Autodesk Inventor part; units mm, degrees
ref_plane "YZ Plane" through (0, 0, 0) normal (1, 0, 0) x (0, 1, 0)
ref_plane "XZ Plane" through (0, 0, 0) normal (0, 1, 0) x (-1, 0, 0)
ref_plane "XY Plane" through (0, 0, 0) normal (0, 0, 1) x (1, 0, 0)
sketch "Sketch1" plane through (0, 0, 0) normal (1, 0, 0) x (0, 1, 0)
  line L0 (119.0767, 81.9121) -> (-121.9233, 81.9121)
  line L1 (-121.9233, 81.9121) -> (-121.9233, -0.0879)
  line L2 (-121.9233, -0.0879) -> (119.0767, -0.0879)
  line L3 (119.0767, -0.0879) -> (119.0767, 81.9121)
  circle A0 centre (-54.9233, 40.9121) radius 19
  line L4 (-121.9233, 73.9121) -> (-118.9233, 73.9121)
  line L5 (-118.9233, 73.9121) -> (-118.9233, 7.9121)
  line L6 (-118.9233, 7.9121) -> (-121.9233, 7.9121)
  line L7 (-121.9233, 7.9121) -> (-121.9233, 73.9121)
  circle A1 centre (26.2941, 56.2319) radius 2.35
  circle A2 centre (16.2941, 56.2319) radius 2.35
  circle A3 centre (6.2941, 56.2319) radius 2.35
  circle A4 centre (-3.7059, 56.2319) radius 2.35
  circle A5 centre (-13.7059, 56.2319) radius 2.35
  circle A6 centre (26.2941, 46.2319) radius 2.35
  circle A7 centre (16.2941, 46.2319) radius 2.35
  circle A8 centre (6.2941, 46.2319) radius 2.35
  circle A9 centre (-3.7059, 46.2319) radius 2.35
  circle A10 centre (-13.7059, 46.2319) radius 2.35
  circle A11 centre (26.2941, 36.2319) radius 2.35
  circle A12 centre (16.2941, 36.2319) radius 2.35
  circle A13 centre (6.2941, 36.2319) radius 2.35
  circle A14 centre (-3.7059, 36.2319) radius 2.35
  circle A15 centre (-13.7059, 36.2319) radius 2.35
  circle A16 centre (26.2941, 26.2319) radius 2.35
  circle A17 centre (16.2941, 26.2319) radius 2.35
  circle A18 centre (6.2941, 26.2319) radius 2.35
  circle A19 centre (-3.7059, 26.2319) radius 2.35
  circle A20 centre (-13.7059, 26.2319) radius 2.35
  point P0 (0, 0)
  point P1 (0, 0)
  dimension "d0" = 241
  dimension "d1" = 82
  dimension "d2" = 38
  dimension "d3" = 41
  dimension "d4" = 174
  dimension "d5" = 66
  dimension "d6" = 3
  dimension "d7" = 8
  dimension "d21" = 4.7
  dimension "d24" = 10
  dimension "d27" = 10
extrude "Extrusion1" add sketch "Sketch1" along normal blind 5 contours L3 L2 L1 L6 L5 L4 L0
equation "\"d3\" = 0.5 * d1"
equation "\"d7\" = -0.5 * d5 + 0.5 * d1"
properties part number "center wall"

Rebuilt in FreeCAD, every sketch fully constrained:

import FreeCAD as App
import Part
import Sketcher
Q = App.Units.Quantity


def add_polygon(sketch, points):
    """Adds a closed chain of lines whose ends are joined by coincident constraints."""
    first, n = sketch.GeometryCount, len(points)
    for a, b in zip(points, points[1:] + points[:1]):
        sketch.addGeometry(Part.LineSegment(App.Vector(*a, 0), App.Vector(*b, 0)), False)
    for i in range(n):
        sketch.addConstraint(Sketcher.Constraint("Coincident", first + i, 2, first + (i + 1) % n, 1))

doc = App.newDocument("Part")
body = doc.addObject("PartDesign::Body", "Body")

# Sketch on YZ plane
sketch1 = body.newObject("Sketcher::SketchObject", "Sketch")
sketch1.AttachmentSupport = (doc.getObject("YZ_Plane"), [""])
sketch1.MapMode = "FlatFace"
add_polygon(sketch1, [(119.1, -0.1), (119.1, 81.9), (-121.9, 81.9), (-121.9, 73.9), (-118.9, 73.9), (-118.9, 7.9), (-121.9, 7.9), (-121.9, -0.1)])  # lines 0-7
sketch1.addGeometry(Part.Circle(App.Vector(-13.7, 26.2, 0), App.Vector(0, 0, 1), 2.4), False)  # 8
sketch1.addGeometry(Part.Circle(App.Vector(-3.7, 26.2, 0), App.Vector(0, 0, 1), 2.4), False)  # 9
sketch1.addGeometry(Part.Circle(App.Vector(-13.7, 36.2, 0), App.Vector(0, 0, 1), 2.4), False)  # 10
sketch1.addGeometry(Part.Circle(App.Vector(-3.7, 36.2, 0), App.Vector(0, 0, 1), 2.4), False)  # 11
sketch1.addGeometry(Part.Circle(App.Vector(6.3, 26.2, 0), App.Vector(0, 0, 1), 2.4), False)  # 12
sketch1.addGeometry(Part.Circle(App.Vector(16.3, 26.2, 0), App.Vector(0, 0, 1), 2.4), False)  # 13
sketch1.addGeometry(Part.Circle(App.Vector(26.3, 26.2, 0), App.Vector(0, 0, 1), 2.4), False)  # 14
sketch1.addGeometry(Part.Circle(App.Vector(6.3, 36.2, 0), App.Vector(0, 0, 1), 2.4), False)  # 15
sketch1.addGeometry(Part.Circle(App.Vector(16.3, 36.2, 0), App.Vector(0, 0, 1), 2.4), False)  # 16
sketch1.addGeometry(Part.Circle(App.Vector(26.3, 36.2, 0), App.Vector(0, 0, 1), 2.4), False)  # 17
sketch1.addGeometry(Part.Circle(App.Vector(-54.9, 40.9, 0), App.Vector(0, 0, 1), 19), False)  # 18
sketch1.addGeometry(Part.Circle(App.Vector(-13.7, 46.2, 0), App.Vector(0, 0, 1), 2.4), False)  # 19
sketch1.addGeometry(Part.Circle(App.Vector(-3.7, 46.2, 0), App.Vector(0, 0, 1), 2.4), False)  # 20
sketch1.addGeometry(Part.Circle(App.Vector(-13.7, 56.2, 0), App.Vector(0, 0, 1), 2.4), False)  # 21
sketch1.addGeometry(Part.Circle(App.Vector(-3.7, 56.2, 0), App.Vector(0, 0, 1), 2.4), False)  # 22
sketch1.addGeometry(Part.Circle(App.Vector(6.3, 46.2, 0), App.Vector(0, 0, 1), 2.4), False)  # 23
sketch1.addGeometry(Part.Circle(App.Vector(16.3, 46.2, 0), App.Vector(0, 0, 1), 2.4), False)  # 24
sketch1.addGeometry(Part.Circle(App.Vector(26.3, 46.2, 0), App.Vector(0, 0, 1), 2.4), False)  # 25
sketch1.addGeometry(Part.Circle(App.Vector(6.3, 56.2, 0), App.Vector(0, 0, 1), 2.4), False)  # 26
sketch1.addGeometry(Part.Circle(App.Vector(16.3, 56.2, 0), App.Vector(0, 0, 1), 2.4), False)  # 27
sketch1.addGeometry(Part.Circle(App.Vector(26.3, 56.2, 0), App.Vector(0, 0, 1), 2.4), False)  # 28
sketch1.addConstraint(Sketcher.Constraint("Vertical", 0))
sketch1.addConstraint(Sketcher.Constraint("Horizontal", 1))
sketch1.addConstraint(Sketcher.Constraint("Vertical", 2))
sketch1.addConstraint(Sketcher.Constraint("Horizontal", 3))
sketch1.addConstraint(Sketcher.Constraint("Vertical", 4))
sketch1.addConstraint(Sketcher.Constraint("Horizontal", 5))
sketch1.addConstraint(Sketcher.Constraint("Vertical", 6))
sketch1.addConstraint(Sketcher.Constraint("Horizontal", 7))
sketch1.addConstraint(Sketcher.Constraint("Equal", 8, 9))
sketch1.addConstraint(Sketcher.Constraint("Equal", 9, 10))
sketch1.addConstraint(Sketcher.Constraint("Equal", 10, 11))
sketch1.addConstraint(Sketcher.Constraint("Equal", 11, 12))
sketch1.addConstraint(Sketcher.Constraint("Equal", 12, 13))
sketch1.addConstraint(Sketcher.Constraint("Equal", 13, 14))
sketch1.addConstraint(Sketcher.Constraint("Equal", 14, 15))
sketch1.addConstraint(Sketcher.Constraint("Equal", 15, 16))
sketch1.addConstraint(Sketcher.Constraint("Equal", 16, 17))
sketch1.addConstraint(Sketcher.Constraint("Equal", 17, 19))
sketch1.addConstraint(Sketcher.Constraint("Equal", 19, 20))
sketch1.addConstraint(Sketcher.Constraint("Equal", 20, 21))
sketch1.addConstraint(Sketcher.Constraint("Equal", 21, 22))
sketch1.addConstraint(Sketcher.Constraint("Equal", 22, 23))
sketch1.addConstraint(Sketcher.Constraint("Equal", 23, 24))
sketch1.addConstraint(Sketcher.Constraint("Equal", 24, 25))
sketch1.addConstraint(Sketcher.Constraint("Equal", 25, 26))
sketch1.addConstraint(Sketcher.Constraint("Equal", 26, 27))
sketch1.addConstraint(Sketcher.Constraint("Equal", 27, 28))
sketch1.addConstraint(Sketcher.Constraint("Horizontal", 8, 3, 9, 3))
sketch1.addConstraint(Sketcher.Constraint("Horizontal", 10, 3, 11, 3))
sketch1.addConstraint(Sketcher.Constraint("Horizontal", 9, 3, 12, 3))
sketch1.addConstraint(Sketcher.Constraint("Horizontal", 12, 3, 13, 3))
sketch1.addConstraint(Sketcher.Constraint("Horizontal", 13, 3, 14, 3))
sketch1.addConstraint(Sketcher.Constraint("Horizontal", 11, 3, 15, 3))
sketch1.addConstraint(Sketcher.Constraint("Horizontal", 15, 3, 16, 3))
sketch1.addConstraint(Sketcher.Constraint("Horizontal", 16, 3, 17, 3))
sketch1.addConstraint(Sketcher.Constraint("Horizontal", 19, 3, 20, 3))
sketch1.addConstraint(Sketcher.Constraint("Horizontal", 21, 3, 22, 3))
sketch1.addConstraint(Sketcher.Constraint("Horizontal", 20, 3, 23, 3))
sketch1.addConstraint(Sketcher.Constraint("Horizontal", 23, 3, 24, 3))
sketch1.addConstraint(Sketcher.Constraint("Horizontal", 24, 3, 25, 3))
sketch1.addConstraint(Sketcher.Constraint("Horizontal", 22, 3, 26, 3))
sketch1.addConstraint(Sketcher.Constraint("Horizontal", 26, 3, 27, 3))
sketch1.addConstraint(Sketcher.Constraint("Horizontal", 27, 3, 28, 3))
sketch1.addConstraint(Sketcher.Constraint("Vertical", 8, 3, 10, 3))
sketch1.addConstraint(Sketcher.Constraint("Vertical", 9, 3, 11, 3))
sketch1.addConstraint(Sketcher.Constraint("Vertical", 12, 3, 15, 3))
sketch1.addConstraint(Sketcher.Constraint("Vertical", 13, 3, 16, 3))
sketch1.addConstraint(Sketcher.Constraint("Vertical", 14, 3, 17, 3))
sketch1.addConstraint(Sketcher.Constraint("Vertical", 10, 3, 19, 3))
sketch1.addConstraint(Sketcher.Constraint("Vertical", 11, 3, 20, 3))
sketch1.addConstraint(Sketcher.Constraint("Vertical", 19, 3, 21, 3))
sketch1.addConstraint(Sketcher.Constraint("Vertical", 20, 3, 22, 3))
sketch1.addConstraint(Sketcher.Constraint("Vertical", 15, 3, 23, 3))
sketch1.addConstraint(Sketcher.Constraint("Vertical", 16, 3, 24, 3))
sketch1.addConstraint(Sketcher.Constraint("Vertical", 17, 3, 25, 3))
sketch1.addConstraint(Sketcher.Constraint("Vertical", 23, 3, 26, 3))
sketch1.addConstraint(Sketcher.Constraint("Vertical", 24, 3, 27, 3))
sketch1.addConstraint(Sketcher.Constraint("Vertical", 25, 3, 28, 3))
sketch1.addConstraint(Sketcher.Constraint("Vertical", 2, 2, 5, 2))
sketch1.addConstraint(Sketcher.Constraint("Equal", 2, 6))
sketch1.addConstraint(Sketcher.Constraint("Diameter", 18, Q("38 mm")))
sketch1.addConstraint(Sketcher.Constraint("Diameter", 8, Q("4.7 mm")))
sketch1.addConstraint(Sketcher.Constraint("DistanceX", 1, 2, 1, 1, Q("241 mm")))
sketch1.addConstraint(Sketcher.Constraint("DistanceX", 3, 1, 3, 2, Q("3 mm")))
sketch1.addConstraint(Sketcher.Constraint("DistanceY", 0, 1, 0, 2, Q("82 mm")))
sketch1.addConstraint(Sketcher.Constraint("DistanceY", 2, 2, 2, 1, Q("8 mm")))
sketch1.addConstraint(Sketcher.Constraint("DistanceX", 8, 3, 9, 3, Q("10 mm")))
sketch1.addConstraint(Sketcher.Constraint("DistanceY", 8, 3, 10, 3, Q("10 mm")))
sketch1.addConstraint(Sketcher.Constraint("DistanceX", 9, 3, 12, 3, Q("10 mm")))
sketch1.addConstraint(Sketcher.Constraint("DistanceX", 12, 3, 13, 3, Q("10 mm")))
sketch1.addConstraint(Sketcher.Constraint("DistanceX", 13, 3, 14, 3, Q("10 mm")))
sketch1.addConstraint(Sketcher.Constraint("DistanceY", 10, 3, 19, 3, Q("10 mm")))
sketch1.addConstraint(Sketcher.Constraint("DistanceY", 19, 3, 21, 3, Q("10 mm")))
sketch1.addConstraint(Sketcher.Constraint("DistanceY", 18, 3, 1, 2, Q("41 mm")))
sketch1.addConstraint(Sketcher.Constraint("DistanceX", 1, 2, 18, 3, Q("67 mm")))
sketch1.addConstraint(Sketcher.Constraint("DistanceX", 8, 3, -1, 1, Q("13.706 mm")))
sketch1.addConstraint(Sketcher.Constraint("DistanceY", -1, 1, 8, 3, Q("26.232 mm")))
sketch1.addConstraint(Sketcher.Constraint("DistanceY", -1, 1, 18, 3, Q("40.912 mm")))
sketch1.addConstraint(Sketcher.Constraint("DistanceX", 18, 3, -1, 1, Q("54.9233 mm")))
pad1 = body.newObject("PartDesign::Pad", "Pad")
pad1.Profile = sketch1
pad1.Length = 5

doc.recompute()
